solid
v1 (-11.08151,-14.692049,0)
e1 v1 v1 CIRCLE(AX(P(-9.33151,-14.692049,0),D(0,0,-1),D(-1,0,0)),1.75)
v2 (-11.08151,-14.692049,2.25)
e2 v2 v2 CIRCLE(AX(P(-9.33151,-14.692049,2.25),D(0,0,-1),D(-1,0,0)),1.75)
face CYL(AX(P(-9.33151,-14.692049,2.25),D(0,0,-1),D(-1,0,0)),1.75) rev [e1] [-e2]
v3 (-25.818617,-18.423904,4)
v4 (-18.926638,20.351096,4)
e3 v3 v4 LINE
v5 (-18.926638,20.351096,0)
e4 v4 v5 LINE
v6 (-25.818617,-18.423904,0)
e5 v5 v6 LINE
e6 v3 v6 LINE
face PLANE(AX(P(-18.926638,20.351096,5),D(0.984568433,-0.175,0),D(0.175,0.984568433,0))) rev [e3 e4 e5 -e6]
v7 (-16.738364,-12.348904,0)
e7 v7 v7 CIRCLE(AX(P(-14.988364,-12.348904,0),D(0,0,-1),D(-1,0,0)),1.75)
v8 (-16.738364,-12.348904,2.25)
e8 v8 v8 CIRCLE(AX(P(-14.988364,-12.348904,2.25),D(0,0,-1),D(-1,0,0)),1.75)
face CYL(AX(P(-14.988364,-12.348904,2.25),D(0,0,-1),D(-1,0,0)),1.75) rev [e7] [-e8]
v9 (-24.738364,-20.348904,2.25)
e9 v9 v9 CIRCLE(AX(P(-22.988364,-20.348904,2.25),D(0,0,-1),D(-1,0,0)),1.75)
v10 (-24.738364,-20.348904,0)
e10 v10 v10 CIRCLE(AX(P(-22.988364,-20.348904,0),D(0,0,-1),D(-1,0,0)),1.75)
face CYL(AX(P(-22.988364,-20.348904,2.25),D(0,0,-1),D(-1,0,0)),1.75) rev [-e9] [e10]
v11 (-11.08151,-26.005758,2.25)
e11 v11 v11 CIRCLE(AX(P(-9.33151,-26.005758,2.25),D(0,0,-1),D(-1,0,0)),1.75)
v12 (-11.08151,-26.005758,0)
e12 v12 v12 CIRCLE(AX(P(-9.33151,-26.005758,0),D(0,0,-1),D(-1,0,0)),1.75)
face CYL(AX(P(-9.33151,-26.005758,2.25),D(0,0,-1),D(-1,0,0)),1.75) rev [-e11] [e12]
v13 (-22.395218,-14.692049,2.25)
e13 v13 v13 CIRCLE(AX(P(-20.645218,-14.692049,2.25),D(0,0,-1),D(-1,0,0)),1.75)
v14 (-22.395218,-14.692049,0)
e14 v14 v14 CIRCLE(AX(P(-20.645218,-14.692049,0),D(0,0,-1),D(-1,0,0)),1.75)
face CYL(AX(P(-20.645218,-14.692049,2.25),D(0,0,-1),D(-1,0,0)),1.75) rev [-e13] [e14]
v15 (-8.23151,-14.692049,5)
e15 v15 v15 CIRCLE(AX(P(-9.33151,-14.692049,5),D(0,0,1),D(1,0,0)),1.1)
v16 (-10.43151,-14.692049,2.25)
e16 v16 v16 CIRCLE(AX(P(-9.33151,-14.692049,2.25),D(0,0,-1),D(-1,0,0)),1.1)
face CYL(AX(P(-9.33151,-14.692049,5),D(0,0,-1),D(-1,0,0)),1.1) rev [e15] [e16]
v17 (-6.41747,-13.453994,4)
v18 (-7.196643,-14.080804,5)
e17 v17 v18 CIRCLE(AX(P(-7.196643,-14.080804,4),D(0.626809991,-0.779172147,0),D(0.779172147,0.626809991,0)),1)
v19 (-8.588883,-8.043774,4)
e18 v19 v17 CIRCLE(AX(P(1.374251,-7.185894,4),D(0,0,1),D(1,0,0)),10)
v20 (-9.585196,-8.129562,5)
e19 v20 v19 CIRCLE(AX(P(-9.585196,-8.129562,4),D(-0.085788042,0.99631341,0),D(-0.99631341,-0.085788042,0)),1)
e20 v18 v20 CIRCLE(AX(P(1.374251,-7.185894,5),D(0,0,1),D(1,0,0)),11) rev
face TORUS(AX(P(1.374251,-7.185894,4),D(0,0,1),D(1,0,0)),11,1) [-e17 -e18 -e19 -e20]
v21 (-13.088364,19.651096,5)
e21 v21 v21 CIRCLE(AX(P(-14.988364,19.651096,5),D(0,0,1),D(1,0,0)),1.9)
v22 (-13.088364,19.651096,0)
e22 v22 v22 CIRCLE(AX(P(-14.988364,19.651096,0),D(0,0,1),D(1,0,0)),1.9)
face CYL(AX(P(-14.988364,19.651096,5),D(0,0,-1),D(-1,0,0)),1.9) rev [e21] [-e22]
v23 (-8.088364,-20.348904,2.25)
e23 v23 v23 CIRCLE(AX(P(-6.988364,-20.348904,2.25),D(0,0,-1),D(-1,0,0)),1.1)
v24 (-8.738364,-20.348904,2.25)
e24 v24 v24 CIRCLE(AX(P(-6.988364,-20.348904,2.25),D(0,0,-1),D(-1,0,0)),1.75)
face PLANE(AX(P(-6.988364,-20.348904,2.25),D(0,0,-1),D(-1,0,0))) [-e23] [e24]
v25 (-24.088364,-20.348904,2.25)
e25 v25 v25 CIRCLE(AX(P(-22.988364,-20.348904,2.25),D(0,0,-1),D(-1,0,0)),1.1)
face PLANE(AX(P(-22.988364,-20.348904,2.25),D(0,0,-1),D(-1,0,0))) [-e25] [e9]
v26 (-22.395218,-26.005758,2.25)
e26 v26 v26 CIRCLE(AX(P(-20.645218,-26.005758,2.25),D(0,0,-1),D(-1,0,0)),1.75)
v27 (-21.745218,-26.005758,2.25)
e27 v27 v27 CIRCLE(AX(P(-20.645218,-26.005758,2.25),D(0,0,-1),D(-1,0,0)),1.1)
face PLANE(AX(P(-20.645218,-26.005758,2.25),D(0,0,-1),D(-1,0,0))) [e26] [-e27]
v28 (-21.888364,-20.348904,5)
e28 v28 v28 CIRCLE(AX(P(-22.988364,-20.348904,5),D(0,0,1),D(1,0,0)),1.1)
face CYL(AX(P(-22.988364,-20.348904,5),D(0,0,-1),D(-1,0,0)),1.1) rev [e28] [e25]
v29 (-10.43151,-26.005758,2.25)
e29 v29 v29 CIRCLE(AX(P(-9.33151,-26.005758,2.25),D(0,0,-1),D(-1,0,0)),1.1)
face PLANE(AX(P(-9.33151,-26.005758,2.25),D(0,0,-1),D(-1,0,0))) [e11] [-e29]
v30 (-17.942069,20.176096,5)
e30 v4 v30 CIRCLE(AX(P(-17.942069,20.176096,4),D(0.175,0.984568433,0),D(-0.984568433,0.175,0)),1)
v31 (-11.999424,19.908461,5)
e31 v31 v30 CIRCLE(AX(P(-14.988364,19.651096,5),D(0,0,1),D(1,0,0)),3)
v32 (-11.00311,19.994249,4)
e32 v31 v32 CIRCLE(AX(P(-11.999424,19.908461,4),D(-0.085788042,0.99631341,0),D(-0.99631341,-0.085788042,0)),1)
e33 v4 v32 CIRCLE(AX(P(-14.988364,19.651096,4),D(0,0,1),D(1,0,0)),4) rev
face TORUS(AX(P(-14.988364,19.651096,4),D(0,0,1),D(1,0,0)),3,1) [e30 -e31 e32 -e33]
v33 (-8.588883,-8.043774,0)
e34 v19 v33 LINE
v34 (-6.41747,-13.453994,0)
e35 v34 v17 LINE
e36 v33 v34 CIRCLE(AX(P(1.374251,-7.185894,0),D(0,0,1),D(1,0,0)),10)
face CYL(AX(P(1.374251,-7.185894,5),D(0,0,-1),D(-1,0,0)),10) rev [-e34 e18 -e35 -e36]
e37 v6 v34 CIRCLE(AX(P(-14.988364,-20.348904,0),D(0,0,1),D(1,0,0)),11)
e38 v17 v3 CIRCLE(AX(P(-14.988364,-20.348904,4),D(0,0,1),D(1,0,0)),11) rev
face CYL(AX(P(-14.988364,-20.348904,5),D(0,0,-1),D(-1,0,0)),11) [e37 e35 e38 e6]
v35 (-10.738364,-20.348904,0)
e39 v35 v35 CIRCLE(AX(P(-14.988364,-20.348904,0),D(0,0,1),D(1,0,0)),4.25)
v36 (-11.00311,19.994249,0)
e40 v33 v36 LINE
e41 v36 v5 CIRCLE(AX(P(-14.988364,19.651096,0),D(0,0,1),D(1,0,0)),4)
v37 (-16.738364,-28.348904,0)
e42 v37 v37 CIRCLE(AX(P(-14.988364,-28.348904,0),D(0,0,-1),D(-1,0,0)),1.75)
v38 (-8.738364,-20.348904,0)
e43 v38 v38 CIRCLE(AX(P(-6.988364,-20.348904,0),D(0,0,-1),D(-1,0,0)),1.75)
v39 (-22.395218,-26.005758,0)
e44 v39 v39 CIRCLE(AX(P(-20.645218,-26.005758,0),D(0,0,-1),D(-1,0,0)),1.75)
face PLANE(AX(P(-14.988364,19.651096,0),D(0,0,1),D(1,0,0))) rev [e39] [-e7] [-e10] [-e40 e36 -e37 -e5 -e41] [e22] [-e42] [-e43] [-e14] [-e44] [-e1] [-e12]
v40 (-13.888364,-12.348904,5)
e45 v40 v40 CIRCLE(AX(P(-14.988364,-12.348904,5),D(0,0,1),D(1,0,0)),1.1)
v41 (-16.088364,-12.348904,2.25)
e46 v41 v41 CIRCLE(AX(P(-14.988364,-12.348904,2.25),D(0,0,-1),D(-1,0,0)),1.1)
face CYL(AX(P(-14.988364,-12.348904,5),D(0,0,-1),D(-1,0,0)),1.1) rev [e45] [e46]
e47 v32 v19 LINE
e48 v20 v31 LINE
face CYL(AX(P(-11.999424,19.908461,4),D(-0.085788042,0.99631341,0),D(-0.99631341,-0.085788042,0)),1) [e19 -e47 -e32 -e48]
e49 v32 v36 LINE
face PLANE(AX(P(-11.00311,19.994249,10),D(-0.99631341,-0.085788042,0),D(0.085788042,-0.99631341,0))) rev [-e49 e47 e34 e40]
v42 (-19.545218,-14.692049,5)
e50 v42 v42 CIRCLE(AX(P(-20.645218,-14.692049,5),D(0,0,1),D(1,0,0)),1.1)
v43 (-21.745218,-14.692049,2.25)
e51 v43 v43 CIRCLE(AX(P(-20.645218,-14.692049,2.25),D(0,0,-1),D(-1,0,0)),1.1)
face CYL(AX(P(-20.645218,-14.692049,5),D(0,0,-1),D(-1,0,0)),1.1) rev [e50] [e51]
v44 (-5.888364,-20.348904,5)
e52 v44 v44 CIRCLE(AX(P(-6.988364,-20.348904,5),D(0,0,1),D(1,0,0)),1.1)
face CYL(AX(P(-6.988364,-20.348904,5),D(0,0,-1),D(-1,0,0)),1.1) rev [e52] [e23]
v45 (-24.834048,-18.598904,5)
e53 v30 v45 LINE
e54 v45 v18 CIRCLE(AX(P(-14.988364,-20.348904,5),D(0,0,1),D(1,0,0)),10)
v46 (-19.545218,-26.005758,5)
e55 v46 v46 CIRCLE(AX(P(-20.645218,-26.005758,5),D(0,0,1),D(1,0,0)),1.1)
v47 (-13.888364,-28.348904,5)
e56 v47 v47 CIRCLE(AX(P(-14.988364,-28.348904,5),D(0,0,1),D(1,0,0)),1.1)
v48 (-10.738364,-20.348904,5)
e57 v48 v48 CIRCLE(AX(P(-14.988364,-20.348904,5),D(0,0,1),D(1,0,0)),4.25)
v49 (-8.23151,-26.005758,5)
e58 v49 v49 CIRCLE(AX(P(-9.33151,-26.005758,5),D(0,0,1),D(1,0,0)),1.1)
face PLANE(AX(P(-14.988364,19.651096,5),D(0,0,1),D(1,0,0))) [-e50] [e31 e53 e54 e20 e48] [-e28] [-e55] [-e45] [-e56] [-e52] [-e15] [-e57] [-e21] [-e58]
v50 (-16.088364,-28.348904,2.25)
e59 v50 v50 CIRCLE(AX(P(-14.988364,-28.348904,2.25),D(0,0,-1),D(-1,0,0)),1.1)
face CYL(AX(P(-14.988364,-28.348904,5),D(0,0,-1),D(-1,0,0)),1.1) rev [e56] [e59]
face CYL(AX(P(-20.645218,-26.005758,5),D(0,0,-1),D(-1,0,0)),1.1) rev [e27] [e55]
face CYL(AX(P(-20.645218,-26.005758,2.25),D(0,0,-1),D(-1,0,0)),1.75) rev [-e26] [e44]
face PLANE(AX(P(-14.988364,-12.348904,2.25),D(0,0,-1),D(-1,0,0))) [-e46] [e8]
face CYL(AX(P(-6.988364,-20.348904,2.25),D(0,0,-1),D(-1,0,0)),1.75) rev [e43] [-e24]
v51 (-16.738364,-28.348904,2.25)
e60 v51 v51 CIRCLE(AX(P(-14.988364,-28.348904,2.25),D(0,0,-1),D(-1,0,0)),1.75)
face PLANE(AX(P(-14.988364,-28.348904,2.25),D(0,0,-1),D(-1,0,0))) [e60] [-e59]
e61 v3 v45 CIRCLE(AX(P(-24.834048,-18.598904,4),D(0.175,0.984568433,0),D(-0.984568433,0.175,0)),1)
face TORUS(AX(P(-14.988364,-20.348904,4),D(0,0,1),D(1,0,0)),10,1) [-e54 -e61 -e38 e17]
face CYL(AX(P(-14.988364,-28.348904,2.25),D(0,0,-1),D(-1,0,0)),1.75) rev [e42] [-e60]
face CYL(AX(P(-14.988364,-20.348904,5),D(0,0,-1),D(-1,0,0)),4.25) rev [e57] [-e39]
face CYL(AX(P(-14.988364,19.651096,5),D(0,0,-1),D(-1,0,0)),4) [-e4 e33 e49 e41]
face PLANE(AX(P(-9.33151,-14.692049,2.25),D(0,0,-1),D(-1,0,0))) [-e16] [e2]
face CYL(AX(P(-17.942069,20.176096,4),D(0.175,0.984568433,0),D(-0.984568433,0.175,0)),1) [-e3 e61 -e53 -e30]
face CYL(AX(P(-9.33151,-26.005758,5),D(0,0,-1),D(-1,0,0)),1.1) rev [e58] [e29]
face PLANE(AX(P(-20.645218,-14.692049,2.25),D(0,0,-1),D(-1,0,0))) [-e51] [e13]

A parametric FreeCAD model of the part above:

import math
import FreeCAD as App
import Part
import Sketcher

V = App.Vector
Q = App.Units.Quantity


def edges_at(feature, points):
    """Names of the edges that pass closest to the given points."""
    edges = feature.Shape.Edges
    near = lambda p: min(range(len(edges)), key=lambda i: edges[i].distToShape(Part.Vertex(*p))[0])
    return sorted({f"Edge{near(p) + 1}" for p in points})

doc = App.newDocument("Part")
body = doc.addObject("PartDesign::Body", "Body")

# Sketch on XY plane
sketch1 = body.newObject("Sketcher::SketchObject", "Sketch")
sketch1.AttachmentSupport = (doc.getObject("XY_Plane"), [""])
sketch1.MapMode = "FlatFace"
sketch1.addGeometry(Part.LineSegment(V(-18.9, 20.4, 0), V(-25.8, -18.4, 0)), False)
sketch1.addGeometry(Part.ArcOfCircle(Part.Circle(V(-15, -20.3, 0), V(0, 0, 1), 11), math.radians(170), math.radians(370)), False)
sketch1.addGeometry(Part.LineSegment(V(-4.2, -18.4, 0), V(-11.1, 20.4, 0)), False)
sketch1.addGeometry(Part.ArcOfCircle(Part.Circle(V(-15, 19.7, 0), V(0, 0, 1), 4), math.radians(10), math.radians(170)), False)
sketch1.addGeometry(Part.Circle(V(-20.6, -26, 0), V(0, 0, 1), 1.1), False)
sketch1.addGeometry(Part.Circle(V(-23, -20.3, 0), V(0, 0, 1), 1.1), False)
sketch1.addGeometry(Part.Circle(V(-20.6, -14.7, 0), V(0, 0, 1), 1.1), False)
sketch1.addGeometry(Part.Circle(V(-15, -28.3, 0), V(0, 0, 1), 1.1), False)
sketch1.addGeometry(Part.Circle(V(-15, -20.3, 0), V(0, 0, 1), 4.2), False)
sketch1.addGeometry(Part.Circle(V(-9.3, -26, 0), V(0, 0, 1), 1.1), False)
sketch1.addGeometry(Part.Circle(V(-7, -20.3, 0), V(0, 0, 1), 1.1), False)
sketch1.addGeometry(Part.Circle(V(-15, -12.3, 0), V(0, 0, 1), 1.1), False)
sketch1.addGeometry(Part.Circle(V(-9.3, -14.7, 0), V(0, 0, 1), 1.1), False)
sketch1.addGeometry(Part.Circle(V(-15, 19.7, 0), V(0, 0, 1), 1.9), False)
sketch1.addConstraint(Sketcher.Constraint("Tangent", 0, 2, 1, 1))
sketch1.addConstraint(Sketcher.Constraint("Tangent", 1, 2, 2, 1))
sketch1.addConstraint(Sketcher.Constraint("Tangent", 2, 2, 3, 1))
sketch1.addConstraint(Sketcher.Constraint("Tangent", 3, 2, 0, 1))
sketch1.addConstraint(Sketcher.Constraint("Coincident", 8, 3, 1, 3))
sketch1.addConstraint(Sketcher.Constraint("Coincident", 13, 3, 3, 3))
sketch1.addConstraint(Sketcher.Constraint("Equal", 4, 5))
sketch1.addConstraint(Sketcher.Constraint("Equal", 5, 6))
sketch1.addConstraint(Sketcher.Constraint("Equal", 6, 7))
sketch1.addConstraint(Sketcher.Constraint("Equal", 7, 9))
sketch1.addConstraint(Sketcher.Constraint("Equal", 9, 10))
sketch1.addConstraint(Sketcher.Constraint("Equal", 10, 11))
sketch1.addConstraint(Sketcher.Constraint("Equal", 11, 12))
sketch1.addConstraint(Sketcher.Constraint("Horizontal", 1, 3, 5, 3))
sketch1.addConstraint(Sketcher.Constraint("Horizontal", 4, 3, 9, 3))
sketch1.addConstraint(Sketcher.Constraint("Horizontal", 8, 3, 10, 3))
sketch1.addConstraint(Sketcher.Constraint("Horizontal", 6, 3, 12, 3))
sketch1.addConstraint(Sketcher.Constraint("Horizontal", 0, 2, 1, 2))
sketch1.addConstraint(Sketcher.Constraint("Vertical", 4, 3, 6, 3))
sketch1.addConstraint(Sketcher.Constraint("Vertical", 3, 3, 7, 3))
sketch1.addConstraint(Sketcher.Constraint("Vertical", 8, 3, 11, 3))
sketch1.addConstraint(Sketcher.Constraint("Vertical", 9, 3, 12, 3))
sketch1.addConstraint(Sketcher.Constraint("Radius", 1, Q("11 mm")))
sketch1.addConstraint(Sketcher.Constraint("Radius", 3, Q("4 mm")))
sketch1.addConstraint(Sketcher.Constraint("Diameter", 4, Q("2.2 mm")))
sketch1.addConstraint(Sketcher.Constraint("Diameter", 8, Q("8.5 mm")))
sketch1.addConstraint(Sketcher.Constraint("Diameter", 13, Q("3.8 mm")))
sketch1.addConstraint(Sketcher.Constraint("DistanceY", 1, 3, 3, 3, Q("40 mm")))
sketch1.addConstraint(Sketcher.Constraint("DistanceX", 5, 3, 1, 3, Q("8 mm")))
sketch1.addConstraint(Sketcher.Constraint("DistanceY", 7, 3, 1, 3, Q("8 mm")))
sketch1.addConstraint(Sketcher.Constraint("DistanceX", 1, 3, 10, 3, Q("8 mm")))
sketch1.addConstraint(Sketcher.Constraint("DistanceY", 1, 3, 11, 3, Q("8 mm")))
sketch1.addConstraint(Sketcher.Constraint("DistanceX", 0, 2, 6, 3, Q("5.173399 mm")))
sketch1.addConstraint(Sketcher.Constraint("DistanceX", 12, 3, 1, 2, Q("5.173399 mm")))
sketch1.addConstraint(Sketcher.Constraint("DistanceX", 4, 3, -1, 1, Q("20.645218 mm")))
sketch1.addConstraint(Sketcher.Constraint("DistanceY", 6, 3, -1, 1, Q("14.692049 mm")))
sketch1.addConstraint(Sketcher.Constraint("DistanceY", 4, 3, 6, 3, Q("11.313708 mm")))
sketch1.addConstraint(Sketcher.Constraint("DistanceY", 1, 3, -1, 1, Q("20.348904 mm")))
pad1 = body.newObject("PartDesign::Pad", "Pad")
pad1.Profile = sketch1
pad1.Length = 5

# Sketch on XY plane
sketch2 = body.newObject("Sketcher::SketchObject", "Sketch001")
sketch2.AttachmentSupport = (doc.getObject("XY_Plane"), [""])
sketch2.MapMode = "FlatFace"
sketch2.addGeometry(Part.Circle(V(-23, -20.3, 0), V(0, 0, 1), 1.8), False)
sketch2.addGeometry(Part.Circle(V(-20.6, -26, 0), V(0, 0, 1), 1.8), False)
sketch2.addGeometry(Part.Circle(V(-15, -28.3, 0), V(0, 0, 1), 1.8), False)
sketch2.addGeometry(Part.Circle(V(-9.3, -26, 0), V(0, 0, 1), 1.8), False)
sketch2.addGeometry(Part.Circle(V(-7, -20.3, 0), V(0, 0, 1), 1.8), False)
sketch2.addGeometry(Part.Circle(V(-9.3, -14.7, 0), V(0, 0, 1), 1.8), False)
sketch2.addGeometry(Part.Circle(V(-15, -12.3, 0), V(0, 0, 1), 1.8), False)
sketch2.addGeometry(Part.Circle(V(-20.6, -14.7, 0), V(0, 0, 1), 1.8), False)
sketch2.addConstraint(Sketcher.Constraint("Equal", 0, 1))
sketch2.addConstraint(Sketcher.Constraint("Equal", 1, 2))
sketch2.addConstraint(Sketcher.Constraint("Equal", 2, 3))
sketch2.addConstraint(Sketcher.Constraint("Equal", 3, 4))
sketch2.addConstraint(Sketcher.Constraint("Equal", 4, 5))
sketch2.addConstraint(Sketcher.Constraint("Equal", 5, 6))
sketch2.addConstraint(Sketcher.Constraint("Equal", 6, 7))
sketch2.addConstraint(Sketcher.Constraint("Horizontal", 1, 3, 3, 3))
sketch2.addConstraint(Sketcher.Constraint("Horizontal", 0, 3, 4, 3))
sketch2.addConstraint(Sketcher.Constraint("Horizontal", 5, 3, 7, 3))
sketch2.addConstraint(Sketcher.Constraint("Vertical", 3, 3, 5, 3))
sketch2.addConstraint(Sketcher.Constraint("Vertical", 2, 3, 6, 3))
sketch2.addConstraint(Sketcher.Constraint("Vertical", 1, 3, 7, 3))
sketch2.addConstraint(Sketcher.Constraint("Diameter", 0, Q("3.5 mm")))
sketch2.addConstraint(Sketcher.Constraint("DistanceX", 0, 3, 2, 3, Q("8 mm")))
sketch2.addConstraint(Sketcher.Constraint("DistanceY", 2, 3, 0, 3, Q("8 mm")))
sketch2.addConstraint(Sketcher.Constraint("DistanceX", 2, 3, 4, 3, Q("8 mm")))
sketch2.addConstraint(Sketcher.Constraint("DistanceY", 0, 3, 6, 3, Q("8 mm")))
sketch2.addConstraint(Sketcher.Constraint("DistanceX", 1, 3, -1, 1, Q("20.645218 mm")))
sketch2.addConstraint(Sketcher.Constraint("DistanceX", 3, 3, -1, 1, Q("9.33151 mm")))
sketch2.addConstraint(Sketcher.Constraint("DistanceY", 5, 3, -1, 1, Q("14.692049 mm")))
sketch2.addConstraint(Sketcher.Constraint("DistanceY", 3, 3, 5, 3, Q("11.313708 mm")))
sketch2.addConstraint(Sketcher.Constraint("DistanceX", 0, 3, -1, 1, Q("22.988364 mm")))
sketch2.addConstraint(Sketcher.Constraint("DistanceY", 0, 3, -1, 1, Q("20.348904 mm")))
pocket1 = body.newObject("PartDesign::Pocket", "Pocket")
pocket1.Profile = sketch2
pocket1.Length = 2.25
pocket1.Reversed = True

# Sketch on XY plane
sketch3 = body.newObject("Sketcher::SketchObject", "Sketch002")
sketch3.AttachmentSupport = (doc.getObject("XY_Plane"), [""])
sketch3.MapMode = "FlatFace"
sketch3.addGeometry(Part.LineSegment(V(-8.28, -11.63, 0), V(-11, 19.99, 0)), False)
sketch3.addGeometry(Part.ArcOfCircle(Part.Circle(V(-14.99, 19.65, 0), V(0, 0, 1), 4), math.radians(4.92), math.radians(10.08)), False)
sketch3.addGeometry(Part.LineSegment(V(-11.05, 20.35, 0), V(-4.16, -18.42, 0)), False)
sketch3.addGeometry(Part.ArcOfCircle(Part.Circle(V(-14.99, -20.35, 0), V(0, 0, 1), 11), math.radians(10), math.radians(52)), False)
sketch3.addConstraint(Sketcher.Constraint("Tangent", 0, 2, 1, 1))
sketch3.addConstraint(Sketcher.Constraint("Tangent", 1, 2, 2, 1))
sketch3.addConstraint(Sketcher.Constraint("Tangent", 2, 2, 3, 1))
sketch3.addConstraint(Sketcher.Constraint("Coincident", 3, 2, 0, 1))
sketch3.addConstraint(Sketcher.Constraint("Vertical", 1, 3, 3, 3))
sketch3.addConstraint(Sketcher.Constraint("Radius", 1, Q("4 mm")))
sketch3.addConstraint(Sketcher.Constraint("Radius", 3, Q("11 mm")))
sketch3.addConstraint(Sketcher.Constraint("DistanceY", 3, 3, 1, 3, Q("40 mm")))
sketch3.addConstraint(Sketcher.Constraint("DistanceX", 0, 2, 2, 2, Q("6.844999 mm")))
sketch3.addConstraint(Sketcher.Constraint("DistanceX", 0, 2, -1, 1, Q("11.00311 mm")))
sketch3.addConstraint(Sketcher.Constraint("DistanceY", -1, 1, 0, 2, Q("19.994249 mm")))
pocket2 = body.newObject("PartDesign::Pocket", "Pocket001")
pocket2.Profile = sketch3
pocket2.Length = 10
pocket2.Reversed = True
doc.recompute()

fillet = body.newObject("PartDesign::Fillet", "Fillet")
fillet.Base = (pocket2, edges_at(pocket2, [(-8.28, -11.631, 2.5)]))
fillet.Radius = 10
doc.recompute()

fillet2 = body.newObject("PartDesign::Fillet", "Fillet001")
fillet2.Base = (fillet, edges_at(fillet, [
    (-14.988, -31.349, 5),
    (-9.796, 5.975, 5),
    (-7.906, -10.911, 5),
    (-14.988, 23.651, 5),
    (-22.373, 0.964, 5),
]))
fillet2.Radius = 1

doc.recompute()
